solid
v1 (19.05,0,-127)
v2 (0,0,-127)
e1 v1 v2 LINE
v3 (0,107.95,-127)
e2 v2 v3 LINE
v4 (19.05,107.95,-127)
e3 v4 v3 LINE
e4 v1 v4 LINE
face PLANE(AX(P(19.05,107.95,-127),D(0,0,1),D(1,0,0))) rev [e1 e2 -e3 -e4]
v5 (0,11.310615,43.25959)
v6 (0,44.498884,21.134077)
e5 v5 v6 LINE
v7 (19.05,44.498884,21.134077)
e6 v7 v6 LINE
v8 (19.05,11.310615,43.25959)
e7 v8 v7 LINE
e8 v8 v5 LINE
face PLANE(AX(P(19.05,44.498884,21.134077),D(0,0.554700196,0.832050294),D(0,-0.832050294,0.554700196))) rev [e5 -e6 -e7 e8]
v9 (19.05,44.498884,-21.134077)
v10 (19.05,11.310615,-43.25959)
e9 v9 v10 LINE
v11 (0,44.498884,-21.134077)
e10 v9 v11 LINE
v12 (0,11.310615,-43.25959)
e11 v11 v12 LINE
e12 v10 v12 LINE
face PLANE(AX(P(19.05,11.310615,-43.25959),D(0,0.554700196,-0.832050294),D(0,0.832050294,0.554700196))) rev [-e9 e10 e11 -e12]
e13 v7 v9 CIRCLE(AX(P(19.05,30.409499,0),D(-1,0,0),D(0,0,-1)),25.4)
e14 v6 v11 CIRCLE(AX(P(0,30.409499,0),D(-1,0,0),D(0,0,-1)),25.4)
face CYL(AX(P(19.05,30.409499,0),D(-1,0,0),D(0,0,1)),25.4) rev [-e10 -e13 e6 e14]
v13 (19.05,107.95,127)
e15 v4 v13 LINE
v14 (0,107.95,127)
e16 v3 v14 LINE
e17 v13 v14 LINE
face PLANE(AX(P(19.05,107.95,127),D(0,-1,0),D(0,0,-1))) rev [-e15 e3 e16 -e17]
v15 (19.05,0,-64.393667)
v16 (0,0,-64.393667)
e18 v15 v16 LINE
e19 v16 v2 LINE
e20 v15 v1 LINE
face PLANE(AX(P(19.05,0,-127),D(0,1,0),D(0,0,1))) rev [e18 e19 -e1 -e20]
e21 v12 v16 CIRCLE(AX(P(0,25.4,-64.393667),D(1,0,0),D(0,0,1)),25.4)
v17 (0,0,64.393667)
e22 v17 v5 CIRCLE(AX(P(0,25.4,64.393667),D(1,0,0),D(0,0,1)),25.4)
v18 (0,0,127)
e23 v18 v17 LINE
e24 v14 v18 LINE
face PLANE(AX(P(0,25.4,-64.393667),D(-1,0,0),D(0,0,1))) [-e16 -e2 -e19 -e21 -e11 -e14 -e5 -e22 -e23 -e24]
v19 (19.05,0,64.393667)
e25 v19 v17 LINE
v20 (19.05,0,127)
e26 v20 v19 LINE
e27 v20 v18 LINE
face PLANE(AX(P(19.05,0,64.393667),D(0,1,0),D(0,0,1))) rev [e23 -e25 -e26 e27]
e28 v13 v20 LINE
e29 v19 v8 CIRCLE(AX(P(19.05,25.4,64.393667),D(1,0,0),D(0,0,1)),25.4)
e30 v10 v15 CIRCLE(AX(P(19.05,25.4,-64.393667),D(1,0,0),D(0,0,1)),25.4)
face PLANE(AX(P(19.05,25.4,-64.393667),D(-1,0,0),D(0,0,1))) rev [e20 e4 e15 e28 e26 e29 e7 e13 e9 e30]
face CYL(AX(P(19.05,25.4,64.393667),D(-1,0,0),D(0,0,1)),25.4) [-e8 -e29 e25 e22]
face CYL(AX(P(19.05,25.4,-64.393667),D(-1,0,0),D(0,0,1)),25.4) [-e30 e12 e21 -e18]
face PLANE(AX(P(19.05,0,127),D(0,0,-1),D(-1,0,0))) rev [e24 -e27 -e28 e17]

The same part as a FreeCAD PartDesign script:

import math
import FreeCAD as App
import Part
import Sketcher
Q = App.Units.Quantity

doc = App.newDocument("Part")
body = doc.addObject("PartDesign::Body", "Body")

sketch1 = body.newObject("Sketcher::SketchObject", "Sketch")
sketch1.AttachmentSupport = (doc.getObject("YZ_Plane"), [""])
sketch1.MapMode = "FlatFace"
sketch1.addGeometry(Part.LineSegment(App.Vector(108, 127, 0), App.Vector(0, 127, 0)), False)
sketch1.addGeometry(Part.LineSegment(App.Vector(0, 127, 0), App.Vector(0, 64, 0)), False)
sketch1.addGeometry(Part.ArcOfCircle(Part.Circle(App.Vector(25, 64, 0), App.Vector(0, 0, 1), 25), math.radians(180), math.radians(236)), False)
sketch1.addGeometry(Part.LineSegment(App.Vector(11, 43, 0), App.Vector(44, 21, 0)), False)
sketch1.addGeometry(Part.ArcOfCircle(Part.Circle(App.Vector(30, 0, 0), App.Vector(0, 0, 1), 25), math.radians(-56), math.radians(56)), False)
sketch1.addGeometry(Part.LineSegment(App.Vector(44, -21, 0), App.Vector(11, -43, 0)), False)
sketch1.addGeometry(Part.ArcOfCircle(Part.Circle(App.Vector(25, -64, 0), App.Vector(0, 0, 1), 25), math.radians(124), math.radians(180)), False)
sketch1.addGeometry(Part.LineSegment(App.Vector(0, -64, 0), App.Vector(0, -127, 0)), False)
sketch1.addGeometry(Part.LineSegment(App.Vector(0, -127, 0), App.Vector(108, -127, 0)), False)
sketch1.addGeometry(Part.LineSegment(App.Vector(108, -127, 0), App.Vector(108, 127, 0)), False)
sketch1.addConstraint(Sketcher.Constraint("Coincident", 0, 2, 1, 1))
sketch1.addConstraint(Sketcher.Constraint("Tangent", 1, 2, 2, 1))
sketch1.addConstraint(Sketcher.Constraint("Tangent", 2, 2, 3, 1))
sketch1.addConstraint(Sketcher.Constraint("Tangent", 3, 2, 4, 2))
sketch1.addConstraint(Sketcher.Constraint("Tangent", 4, 1, 5, 1))
sketch1.addConstraint(Sketcher.Constraint("Tangent", 5, 2, 6, 1))
sketch1.addConstraint(Sketcher.Constraint("Tangent", 6, 2, 7, 1))
sketch1.addConstraint(Sketcher.Constraint("Coincident", 7, 2, 8, 1))
sketch1.addConstraint(Sketcher.Constraint("Coincident", 8, 2, 9, 1))
sketch1.addConstraint(Sketcher.Constraint("Coincident", 9, 2, 0, 1))
sketch1.addConstraint(Sketcher.Constraint("Horizontal", 0))
sketch1.addConstraint(Sketcher.Constraint("Vertical", 1))
sketch1.addConstraint(Sketcher.Constraint("Vertical", 7))
sketch1.addConstraint(Sketcher.Constraint("Horizontal", 8))
sketch1.addConstraint(Sketcher.Constraint("Vertical", 9))
sketch1.addConstraint(Sketcher.Constraint("Equal", 2, 4))
sketch1.addConstraint(Sketcher.Constraint("Equal", 4, 6))
sketch1.addConstraint(Sketcher.Constraint("Symmetric", 1, 2, 6, 2, -1, 1))
sketch1.addConstraint(Sketcher.Constraint("Symmetric", 3, 2, 4, 1, -1))
sketch1.addConstraint(Sketcher.Constraint("Equal", 1, 7))
sketch1.addConstraint(Sketcher.Constraint("Radius", 2, Q("1 in")))
sketch1.addConstraint(Sketcher.Constraint("DistanceY", 9, 1, 9, 2, Q("10 in")))
sketch1.addConstraint(Sketcher.Constraint("DistanceX", 0, 2, 0, 1, Q("4.25 in")))
sketch1.addConstraint(Sketcher.Constraint("DistanceX", -1, 1, 2, 2, Q("0.4452998 in")))
sketch1.addConstraint(Sketcher.Constraint("DistanceX", -1, 1, 4, 3, Q("30.409499 mm")))
pad1 = body.newObject("PartDesign::Pad", "Pad")
pad1.Profile = sketch1
pad1.Length = Q("0.75 in")

doc.recompute()
